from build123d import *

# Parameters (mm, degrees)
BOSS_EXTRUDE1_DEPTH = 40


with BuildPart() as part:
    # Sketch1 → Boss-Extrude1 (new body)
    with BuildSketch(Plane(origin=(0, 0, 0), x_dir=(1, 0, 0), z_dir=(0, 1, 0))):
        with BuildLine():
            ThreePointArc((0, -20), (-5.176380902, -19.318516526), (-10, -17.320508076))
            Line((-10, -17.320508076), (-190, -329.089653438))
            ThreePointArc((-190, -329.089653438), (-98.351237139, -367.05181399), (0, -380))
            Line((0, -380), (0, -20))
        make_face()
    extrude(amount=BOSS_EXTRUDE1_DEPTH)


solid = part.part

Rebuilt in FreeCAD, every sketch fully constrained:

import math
import FreeCAD as App
import Part
import Sketcher

V = App.Vector
Q = App.Units.Quantity

doc = App.newDocument("Part")
body = doc.addObject("PartDesign::Body", "Body")

sketch1 = body.newObject("Sketcher::SketchObject", "Sketch")
sketch1.AttachmentSupport = (doc.getObject("XZ_Plane"), [""])
sketch1.MapMode = "FlatFace"
sketch1.addGeometry(Part.ArcOfCircle(Part.Circle(V(0, 0, 0), V(0, 0, 1), 20), math.radians(90), math.radians(120)), False)
sketch1.addGeometry(Part.LineSegment(V(-10, 17, 0), V(-190, 329, 0)), False)
sketch1.addGeometry(Part.ArcOfCircle(Part.Circle(V(0, 0, 0), V(0, 0, 1), 380), math.radians(90), math.radians(120)), False)
sketch1.addGeometry(Part.LineSegment(V(0, 380, 0), V(0, 20, 0)), False)
sketch1.addConstraint(Sketcher.Constraint("Coincident", 0, 2, 1, 1))
sketch1.addConstraint(Sketcher.Constraint("Coincident", 1, 2, 2, 2))
sketch1.addConstraint(Sketcher.Constraint("Coincident", 2, 1, 3, 1))
sketch1.addConstraint(Sketcher.Constraint("Coincident", 3, 2, 0, 1))
sketch1.addConstraint(Sketcher.Constraint("Vertical", 3))
sketch1.addConstraint(Sketcher.Constraint("Coincident", 0, 3, -1, 1))
sketch1.addConstraint(Sketcher.Constraint("Coincident", 2, 3, -1, 1))
sketch1.addConstraint(Sketcher.Constraint("PointOnObject", 3, 2, -2))
sketch1.addConstraint(Sketcher.Constraint("Radius", 0, 20.0))
sketch1.addConstraint(Sketcher.Constraint("Radius", 2, 380.0))
sketch1.addConstraint(Sketcher.Constraint("Angle", 1, Q("120 deg")))
sketch1.addConstraint(Sketcher.Constraint("DistanceX", 0, 2, -1, 1, 10.0))
pad1 = body.newObject("PartDesign::Pad", "Pad")
pad1.Profile = sketch1
pad1.Length = 40
pad1.Reversed = True

doc.recompute()
